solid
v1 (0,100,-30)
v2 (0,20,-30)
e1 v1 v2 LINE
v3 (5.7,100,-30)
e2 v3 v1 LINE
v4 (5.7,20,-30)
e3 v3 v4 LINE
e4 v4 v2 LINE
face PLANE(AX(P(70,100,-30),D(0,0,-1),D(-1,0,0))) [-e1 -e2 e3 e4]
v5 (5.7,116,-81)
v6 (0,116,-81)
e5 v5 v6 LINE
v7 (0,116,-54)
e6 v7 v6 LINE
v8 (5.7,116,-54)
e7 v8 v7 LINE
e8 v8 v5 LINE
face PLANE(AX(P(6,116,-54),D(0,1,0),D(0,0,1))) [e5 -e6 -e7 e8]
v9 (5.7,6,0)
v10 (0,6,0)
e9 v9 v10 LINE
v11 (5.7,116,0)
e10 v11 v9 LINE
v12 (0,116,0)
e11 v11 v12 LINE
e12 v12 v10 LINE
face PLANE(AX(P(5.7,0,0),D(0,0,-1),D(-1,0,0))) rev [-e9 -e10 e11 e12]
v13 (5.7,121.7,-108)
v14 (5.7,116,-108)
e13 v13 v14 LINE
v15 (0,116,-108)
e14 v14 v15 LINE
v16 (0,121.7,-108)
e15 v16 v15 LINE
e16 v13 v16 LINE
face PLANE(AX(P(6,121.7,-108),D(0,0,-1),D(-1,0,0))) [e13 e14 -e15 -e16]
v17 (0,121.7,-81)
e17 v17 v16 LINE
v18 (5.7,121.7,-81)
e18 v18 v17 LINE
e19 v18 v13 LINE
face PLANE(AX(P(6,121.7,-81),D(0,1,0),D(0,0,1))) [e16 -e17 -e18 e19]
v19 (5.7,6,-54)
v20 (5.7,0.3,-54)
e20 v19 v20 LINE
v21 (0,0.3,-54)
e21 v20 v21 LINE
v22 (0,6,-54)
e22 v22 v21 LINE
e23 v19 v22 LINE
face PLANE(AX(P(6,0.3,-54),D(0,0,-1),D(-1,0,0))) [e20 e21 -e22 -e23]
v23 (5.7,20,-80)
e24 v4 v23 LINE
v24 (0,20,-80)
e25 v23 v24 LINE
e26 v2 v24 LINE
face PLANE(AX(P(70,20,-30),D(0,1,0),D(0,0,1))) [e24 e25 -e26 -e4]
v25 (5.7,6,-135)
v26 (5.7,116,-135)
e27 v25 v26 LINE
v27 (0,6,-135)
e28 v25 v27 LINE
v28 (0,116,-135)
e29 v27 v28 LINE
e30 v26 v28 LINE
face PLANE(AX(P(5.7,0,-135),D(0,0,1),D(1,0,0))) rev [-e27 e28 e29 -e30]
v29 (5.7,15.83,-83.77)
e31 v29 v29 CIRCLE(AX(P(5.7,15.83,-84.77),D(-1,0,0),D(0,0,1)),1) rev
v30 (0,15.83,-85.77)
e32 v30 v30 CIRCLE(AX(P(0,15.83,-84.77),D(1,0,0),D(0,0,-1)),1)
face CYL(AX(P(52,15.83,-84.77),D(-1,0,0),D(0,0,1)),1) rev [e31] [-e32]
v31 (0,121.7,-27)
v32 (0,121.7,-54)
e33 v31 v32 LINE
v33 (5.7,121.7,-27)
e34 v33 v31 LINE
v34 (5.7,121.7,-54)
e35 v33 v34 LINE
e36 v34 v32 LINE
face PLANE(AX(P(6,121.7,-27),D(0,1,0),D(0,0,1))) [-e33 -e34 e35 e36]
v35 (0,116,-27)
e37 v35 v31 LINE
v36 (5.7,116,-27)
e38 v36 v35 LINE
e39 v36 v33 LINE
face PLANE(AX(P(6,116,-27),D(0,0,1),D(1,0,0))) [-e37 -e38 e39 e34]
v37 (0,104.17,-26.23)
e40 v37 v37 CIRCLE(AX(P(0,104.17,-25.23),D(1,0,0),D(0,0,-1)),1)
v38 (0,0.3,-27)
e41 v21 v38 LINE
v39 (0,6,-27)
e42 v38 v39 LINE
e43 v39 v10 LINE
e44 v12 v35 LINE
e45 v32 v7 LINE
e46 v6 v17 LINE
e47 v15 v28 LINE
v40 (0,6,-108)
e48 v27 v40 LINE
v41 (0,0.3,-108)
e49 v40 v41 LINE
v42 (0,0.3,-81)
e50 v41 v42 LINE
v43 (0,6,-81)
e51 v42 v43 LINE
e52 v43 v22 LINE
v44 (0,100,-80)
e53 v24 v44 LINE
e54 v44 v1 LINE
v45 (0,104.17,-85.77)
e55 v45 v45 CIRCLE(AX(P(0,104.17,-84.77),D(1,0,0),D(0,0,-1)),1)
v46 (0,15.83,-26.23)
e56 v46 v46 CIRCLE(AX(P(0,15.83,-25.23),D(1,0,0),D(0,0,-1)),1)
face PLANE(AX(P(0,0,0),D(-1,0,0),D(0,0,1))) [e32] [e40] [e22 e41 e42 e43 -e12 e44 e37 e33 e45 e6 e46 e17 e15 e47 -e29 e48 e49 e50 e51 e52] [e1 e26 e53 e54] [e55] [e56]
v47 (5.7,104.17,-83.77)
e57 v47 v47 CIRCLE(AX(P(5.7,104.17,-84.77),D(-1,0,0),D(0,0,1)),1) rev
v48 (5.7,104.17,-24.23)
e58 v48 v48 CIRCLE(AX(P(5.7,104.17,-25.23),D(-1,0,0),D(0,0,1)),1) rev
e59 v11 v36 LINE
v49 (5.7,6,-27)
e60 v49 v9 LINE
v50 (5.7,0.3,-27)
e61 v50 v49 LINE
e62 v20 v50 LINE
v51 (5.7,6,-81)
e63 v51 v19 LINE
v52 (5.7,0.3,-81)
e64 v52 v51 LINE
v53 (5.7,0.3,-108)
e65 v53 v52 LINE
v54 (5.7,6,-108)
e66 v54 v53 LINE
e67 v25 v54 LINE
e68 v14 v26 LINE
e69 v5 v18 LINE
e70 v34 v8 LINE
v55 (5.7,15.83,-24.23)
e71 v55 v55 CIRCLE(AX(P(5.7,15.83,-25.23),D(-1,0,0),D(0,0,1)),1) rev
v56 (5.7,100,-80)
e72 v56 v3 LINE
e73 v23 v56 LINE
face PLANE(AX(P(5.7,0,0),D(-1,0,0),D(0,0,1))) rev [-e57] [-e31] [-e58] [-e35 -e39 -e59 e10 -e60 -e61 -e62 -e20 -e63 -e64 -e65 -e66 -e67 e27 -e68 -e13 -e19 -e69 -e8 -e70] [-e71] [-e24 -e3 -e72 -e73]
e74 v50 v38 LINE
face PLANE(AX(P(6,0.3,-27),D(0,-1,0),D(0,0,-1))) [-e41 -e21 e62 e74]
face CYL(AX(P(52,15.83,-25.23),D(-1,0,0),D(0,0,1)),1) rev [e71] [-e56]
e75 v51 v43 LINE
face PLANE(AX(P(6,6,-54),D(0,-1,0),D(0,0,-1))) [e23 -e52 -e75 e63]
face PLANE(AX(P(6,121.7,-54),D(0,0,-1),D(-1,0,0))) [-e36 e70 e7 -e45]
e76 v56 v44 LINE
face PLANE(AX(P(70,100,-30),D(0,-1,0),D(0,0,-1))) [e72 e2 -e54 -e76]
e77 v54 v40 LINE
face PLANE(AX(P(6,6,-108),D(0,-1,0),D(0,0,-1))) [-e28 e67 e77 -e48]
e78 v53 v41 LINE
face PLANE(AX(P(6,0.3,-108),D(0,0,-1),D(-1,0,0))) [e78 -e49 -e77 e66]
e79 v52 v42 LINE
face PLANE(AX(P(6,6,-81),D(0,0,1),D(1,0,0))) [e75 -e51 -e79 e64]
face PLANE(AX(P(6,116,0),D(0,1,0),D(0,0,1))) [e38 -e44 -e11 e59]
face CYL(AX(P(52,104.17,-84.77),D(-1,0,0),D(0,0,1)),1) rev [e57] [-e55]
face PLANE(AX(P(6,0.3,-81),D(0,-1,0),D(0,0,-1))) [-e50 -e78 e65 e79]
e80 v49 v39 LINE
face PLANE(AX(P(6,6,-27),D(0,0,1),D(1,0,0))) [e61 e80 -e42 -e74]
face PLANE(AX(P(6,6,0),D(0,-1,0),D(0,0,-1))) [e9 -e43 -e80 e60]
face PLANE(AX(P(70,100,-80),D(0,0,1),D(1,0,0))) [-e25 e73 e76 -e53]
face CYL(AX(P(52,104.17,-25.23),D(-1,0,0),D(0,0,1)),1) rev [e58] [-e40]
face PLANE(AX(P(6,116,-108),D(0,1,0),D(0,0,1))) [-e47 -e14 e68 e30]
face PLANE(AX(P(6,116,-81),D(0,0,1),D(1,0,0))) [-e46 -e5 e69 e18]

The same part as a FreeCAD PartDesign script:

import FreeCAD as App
import Part
import Sketcher
from FreeCAD import Vector
Q = App.Units.Quantity


def add_polygon(sketch, points):
    """Adds a closed chain of lines whose ends are joined by coincident constraints."""
    first, n = sketch.GeometryCount, len(points)
    for a, b in zip(points, points[1:] + points[:1]):
        sketch.addGeometry(Part.LineSegment(App.Vector(*a, 0), App.Vector(*b, 0)), False)
    for i in range(n):
        sketch.addConstraint(Sketcher.Constraint("Coincident", first + i, 2, first + (i + 1) % n, 1))

doc = App.newDocument("Part")
body = doc.addObject("PartDesign::Body", "Body")

# Sketch on YZ plane
sketch1 = body.newObject("Sketcher::SketchObject", "Sketch")
sketch1.AttachmentSupport = (doc.getObject("YZ_Plane"), [""])
sketch1.MapMode = "FlatFace"
add_polygon(sketch1, [(122, 0), (0, 0), (0, -135), (122, -135)])  # lines 0-3
sketch1.addConstraint(Sketcher.Constraint("Horizontal", 0))
sketch1.addConstraint(Sketcher.Constraint("Vertical", 1))
sketch1.addConstraint(Sketcher.Constraint("Horizontal", 2))
sketch1.addConstraint(Sketcher.Constraint("Vertical", 3))
sketch1.addConstraint(Sketcher.Constraint("Coincident", 0, 2, -1, 1))
sketch1.addConstraint(Sketcher.Constraint("DistanceX", 0, 2, 0, 1, Q("122 mm")))
sketch1.addConstraint(Sketcher.Constraint("DistanceY", 1, 2, 1, 1, Q("135 mm")))
pad1 = body.newObject("PartDesign::Pad", "Pad")
pad1.Profile = sketch1
pad1.Length = 5.7

# Sketch on YZ plane
sketch2 = body.newObject("Sketcher::SketchObject", "Sketch001")
sketch2.AttachmentSupport = (doc.getObject("YZ_Plane"), [""])
sketch2.MapMode = "FlatFace"
add_polygon(sketch2, [(116, 0), (116, -27), (122, -27), (122, -54), (116, -54), (116, -81), (122, -81), (122, -108), (116, -108), (116, -135), (130, -135), (130, 0)])  # lines 0-11
add_polygon(sketch2, [(6, 0), (-8, 0), (-8, -135), (6, -135), (6, -108), (0, -108), (0, -81), (6, -81), (6, -54), (0, -54), (0, -27), (6, -27)])  # lines 12-23
sketch2.addConstraint(Sketcher.Constraint("Vertical", 0))
sketch2.addConstraint(Sketcher.Constraint("Horizontal", 1))
sketch2.addConstraint(Sketcher.Constraint("Vertical", 2))
sketch2.addConstraint(Sketcher.Constraint("Horizontal", 3))
sketch2.addConstraint(Sketcher.Constraint("Vertical", 4))
sketch2.addConstraint(Sketcher.Constraint("Horizontal", 5))
sketch2.addConstraint(Sketcher.Constraint("Vertical", 6))
sketch2.addConstraint(Sketcher.Constraint("Horizontal", 7))
sketch2.addConstraint(Sketcher.Constraint("Vertical", 8))
sketch2.addConstraint(Sketcher.Constraint("Horizontal", 9))
sketch2.addConstraint(Sketcher.Constraint("Vertical", 10))
sketch2.addConstraint(Sketcher.Constraint("Horizontal", 11))
sketch2.addConstraint(Sketcher.Constraint("Horizontal", 12))
sketch2.addConstraint(Sketcher.Constraint("Vertical", 13))
sketch2.addConstraint(Sketcher.Constraint("Horizontal", 14))
sketch2.addConstraint(Sketcher.Constraint("Vertical", 15))
sketch2.addConstraint(Sketcher.Constraint("Horizontal", 16))
sketch2.addConstraint(Sketcher.Constraint("Vertical", 17))
sketch2.addConstraint(Sketcher.Constraint("Horizontal", 18))
sketch2.addConstraint(Sketcher.Constraint("Vertical", 19))
sketch2.addConstraint(Sketcher.Constraint("Horizontal", 20))
sketch2.addConstraint(Sketcher.Constraint("Vertical", 21))
sketch2.addConstraint(Sketcher.Constraint("Horizontal", 22))
sketch2.addConstraint(Sketcher.Constraint("Vertical", 23))
sketch2.addConstraint(Sketcher.Constraint("PointOnObject", 10, 2, -1))
sketch2.addConstraint(Sketcher.Constraint("PointOnObject", 12, 2, -1))
sketch2.addConstraint(Sketcher.Constraint("Horizontal", 9, 2, 13, 2))
sketch2.addConstraint(Sketcher.Constraint("Horizontal", 7, 2, 15, 2))
sketch2.addConstraint(Sketcher.Constraint("Horizontal", 5, 2, 17, 2))
sketch2.addConstraint(Sketcher.Constraint("Horizontal", 3, 2, 19, 2))
sketch2.addConstraint(Sketcher.Constraint("Horizontal", 1, 2, 21, 2))
sketch2.addConstraint(Sketcher.Constraint("Vertical", 0, 2, 3, 2))
sketch2.addConstraint(Sketcher.Constraint("Vertical", 2, 2, 5, 2))
sketch2.addConstraint(Sketcher.Constraint("Vertical", 4, 2, 7, 2))
sketch2.addConstraint(Sketcher.Constraint("Vertical", 15, 2, 18, 2))
sketch2.addConstraint(Sketcher.Constraint("Vertical", 17, 2, 20, 2))
sketch2.addConstraint(Sketcher.Constraint("Vertical", 19, 2, 22, 2))
sketch2.addConstraint(Sketcher.Constraint("Equal", 11, 12))
sketch2.addConstraint(Sketcher.Constraint("Equal", 7, 16))
sketch2.addConstraint(Sketcher.Constraint("Equal", 0, 2))
sketch2.addConstraint(Sketcher.Constraint("Equal", 2, 4))
sketch2.addConstraint(Sketcher.Constraint("Equal", 4, 6))
sketch2.addConstraint(Sketcher.Constraint("Equal", 6, 8))
sketch2.addConstraint(Sketcher.Constraint("DistanceX", 9, 1, 9, 2, Q("14 mm")))
sketch2.addConstraint(Sketcher.Constraint("DistanceY", 0, 2, 0, 1, Q("27 mm")))
sketch2.addConstraint(Sketcher.Constraint("DistanceX", 1, 1, 1, 2, Q("5.7 mm")))
sketch2.addConstraint(Sketcher.Constraint("DistanceX", -1, 1, 0, 2, Q("116 mm")))
sketch2.addConstraint(Sketcher.Constraint("DistanceX", 12, 2, -1, 1, Q("8 mm")))
pocket1 = body.newObject("PartDesign::Pocket", "Pocket")
pocket1.Profile = sketch2
pocket1.Length = 6
pocket1.Reversed = True

# Sketch on YZ plane
sketch3 = body.newObject("Sketcher::SketchObject", "Sketch002")
sketch3.AttachmentSupport = (doc.getObject("YZ_Plane"), [""])
sketch3.MapMode = "FlatFace"
add_polygon(sketch3, [(100, -30), (20, -30), (20, -80), (100, -80)])  # lines 0-3
sketch3.addConstraint(Sketcher.Constraint("Horizontal", 0))
sketch3.addConstraint(Sketcher.Constraint("Vertical", 1))
sketch3.addConstraint(Sketcher.Constraint("Horizontal", 2))
sketch3.addConstraint(Sketcher.Constraint("Vertical", 3))
sketch3.addConstraint(Sketcher.Constraint("DistanceX", 0, 2, 0, 1, Q("80 mm")))
sketch3.addConstraint(Sketcher.Constraint("DistanceY", 1, 2, 1, 1, Q("50 mm")))
sketch3.addConstraint(Sketcher.Constraint("DistanceX", -1, 1, 0, 2, Q("20 mm")))
sketch3.addConstraint(Sketcher.Constraint("DistanceY", 0, 2, -1, 1, Q("30 mm")))
pocket2 = body.newObject("PartDesign::Pocket", "Pocket001")
pocket2.Profile = sketch3
pocket2.Length = 70
pocket2.Reversed = True

# Sketch on YZ plane
sketch4 = body.newObject("Sketcher::SketchObject", "Sketch003")
sketch4.AttachmentSupport = (doc.getObject("YZ_Plane"), [""])
sketch4.MapMode = "FlatFace"
sketch4.addGeometry(Part.Circle(Vector(104.2, -25.2, 0), Vector(0, 0, 1), 1), False)
sketch4.addGeometry(Part.Circle(Vector(104.2, -84.8, 0), Vector(0, 0, 1), 1), False)
sketch4.addGeometry(Part.Circle(Vector(15.8, -25.2, 0), Vector(0, 0, 1), 1), False)
sketch4.addGeometry(Part.Circle(Vector(15.8, -84.8, 0), Vector(0, 0, 1), 1), False)
sketch4.addConstraint(Sketcher.Constraint("Equal", 0, 1))
sketch4.addConstraint(Sketcher.Constraint("Equal", 1, 2))
sketch4.addConstraint(Sketcher.Constraint("Equal", 2, 3))
sketch4.addConstraint(Sketcher.Constraint("Horizontal", 0, 3, 2, 3))
sketch4.addConstraint(Sketcher.Constraint("Horizontal", 1, 3, 3, 3))
sketch4.addConstraint(Sketcher.Constraint("Vertical", 0, 3, 1, 3))
sketch4.addConstraint(Sketcher.Constraint("Vertical", 2, 3, 3, 3))
sketch4.addConstraint(Sketcher.Constraint("Diameter", 0, Q("2 mm")))
sketch4.addConstraint(Sketcher.Constraint("DistanceX", -1, 1, 0, 3, Q("104.17 mm")))
sketch4.addConstraint(Sketcher.Constraint("DistanceY", 0, 3, -1, 1, Q("25.23 mm")))
sketch4.addConstraint(Sketcher.Constraint("DistanceY", 1, 3, -1, 1, Q("84.77 mm")))
sketch4.addConstraint(Sketcher.Constraint("DistanceX", -1, 1, 2, 3, Q("15.83 mm")))
pocket3 = body.newObject("PartDesign::Pocket", "Pocket002")
pocket3.Profile = sketch4
pocket3.Length = 52
pocket3.Reversed = True

doc.recompute()
